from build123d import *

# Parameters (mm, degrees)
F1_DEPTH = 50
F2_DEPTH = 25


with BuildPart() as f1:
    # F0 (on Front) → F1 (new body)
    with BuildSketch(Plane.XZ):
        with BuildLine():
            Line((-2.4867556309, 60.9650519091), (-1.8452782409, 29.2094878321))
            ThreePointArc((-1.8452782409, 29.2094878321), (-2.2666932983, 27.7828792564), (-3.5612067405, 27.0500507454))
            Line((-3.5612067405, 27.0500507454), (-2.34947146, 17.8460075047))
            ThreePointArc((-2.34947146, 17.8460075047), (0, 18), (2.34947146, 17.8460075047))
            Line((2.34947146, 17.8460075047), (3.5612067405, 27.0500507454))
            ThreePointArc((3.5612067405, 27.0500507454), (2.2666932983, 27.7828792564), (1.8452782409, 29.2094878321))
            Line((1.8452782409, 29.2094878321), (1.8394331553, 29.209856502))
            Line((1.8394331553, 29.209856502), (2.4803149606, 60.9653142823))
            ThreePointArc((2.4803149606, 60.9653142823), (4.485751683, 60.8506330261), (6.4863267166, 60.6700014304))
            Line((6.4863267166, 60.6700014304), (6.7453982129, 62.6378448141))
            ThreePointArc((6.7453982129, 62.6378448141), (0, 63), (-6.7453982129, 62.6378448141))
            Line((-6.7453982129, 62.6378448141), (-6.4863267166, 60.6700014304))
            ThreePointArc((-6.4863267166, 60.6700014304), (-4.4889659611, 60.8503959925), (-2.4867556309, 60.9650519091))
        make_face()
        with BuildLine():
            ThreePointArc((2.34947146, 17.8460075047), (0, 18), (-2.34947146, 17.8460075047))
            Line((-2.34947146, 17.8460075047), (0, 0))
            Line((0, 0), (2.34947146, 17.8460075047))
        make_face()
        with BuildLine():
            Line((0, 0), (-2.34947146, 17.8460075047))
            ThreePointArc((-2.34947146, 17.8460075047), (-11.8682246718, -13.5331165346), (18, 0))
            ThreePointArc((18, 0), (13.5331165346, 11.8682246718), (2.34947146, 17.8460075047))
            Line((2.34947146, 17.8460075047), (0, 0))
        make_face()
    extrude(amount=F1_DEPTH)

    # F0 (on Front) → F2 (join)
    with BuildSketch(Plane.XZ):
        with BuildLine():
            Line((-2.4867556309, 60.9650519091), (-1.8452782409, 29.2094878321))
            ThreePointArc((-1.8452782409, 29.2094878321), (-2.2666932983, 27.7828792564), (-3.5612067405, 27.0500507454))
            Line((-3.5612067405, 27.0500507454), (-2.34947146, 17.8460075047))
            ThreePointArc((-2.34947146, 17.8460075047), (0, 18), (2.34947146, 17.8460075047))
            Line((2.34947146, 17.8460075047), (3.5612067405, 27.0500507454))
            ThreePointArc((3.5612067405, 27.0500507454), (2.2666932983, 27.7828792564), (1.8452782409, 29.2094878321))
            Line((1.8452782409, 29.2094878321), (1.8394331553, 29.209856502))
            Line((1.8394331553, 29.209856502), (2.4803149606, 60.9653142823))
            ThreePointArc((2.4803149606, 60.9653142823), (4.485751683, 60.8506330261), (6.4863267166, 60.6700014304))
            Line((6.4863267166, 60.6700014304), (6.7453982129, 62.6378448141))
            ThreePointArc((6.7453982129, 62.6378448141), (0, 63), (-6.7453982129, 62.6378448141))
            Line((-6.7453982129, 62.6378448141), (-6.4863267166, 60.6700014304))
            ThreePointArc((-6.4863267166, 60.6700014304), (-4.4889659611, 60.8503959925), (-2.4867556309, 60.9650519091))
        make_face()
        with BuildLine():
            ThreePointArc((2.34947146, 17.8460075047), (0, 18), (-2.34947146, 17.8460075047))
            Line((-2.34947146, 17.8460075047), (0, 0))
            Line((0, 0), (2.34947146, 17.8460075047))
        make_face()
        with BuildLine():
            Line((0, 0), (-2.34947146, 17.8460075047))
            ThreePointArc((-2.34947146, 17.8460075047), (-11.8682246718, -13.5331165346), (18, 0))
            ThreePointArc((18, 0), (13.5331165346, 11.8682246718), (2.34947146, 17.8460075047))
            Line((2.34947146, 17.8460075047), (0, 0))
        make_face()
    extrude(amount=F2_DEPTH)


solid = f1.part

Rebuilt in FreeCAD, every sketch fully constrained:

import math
import FreeCAD as App
import Part
import Sketcher

V = App.Vector
Q = App.Units.Quantity

doc = App.newDocument("Part")
body = doc.addObject("PartDesign::Body", "Body")

# Sketch on XZ plane
sketch1 = body.newObject("Sketcher::SketchObject", "Sketch")
sketch1.AttachmentSupport = (doc.getObject("XZ_Plane"), [""])
sketch1.MapMode = "FlatFace"
sketch1.addGeometry([
    Part.LineSegment(V(-2.487, 60.965, 0), V(-1.845, 29.209, 0)),  # 0
    Part.ArcOfCircle(Part.Circle(V(-3.82, 29.017, 0), V(0, 0, 1), 1.984), math.radians(-82), math.radians(6)),  # 1
    Part.LineSegment(V(-3.561, 27.05, 0), V(-2.349, 17.846, 0)),  # 2
    Part.ArcOfCircle(Part.Circle(V(0, 0, 0), V(0, 0, 1), 18), math.radians(98), math.radians(360)),  # 3
    Part.ArcOfCircle(Part.Circle(V(0, 0, 0), V(0, 0, 1), 18), math.radians(0), math.radians(82)),  # 4
    Part.LineSegment(V(2.349, 17.846, 0), V(3.561, 27.05, 0)),  # 5
    Part.ArcOfCircle(Part.Circle(V(3.82, 29.017, 0), V(0, 0, 1), 1.984), math.radians(174), math.radians(262)),  # 6
    Part.LineSegment(V(1.845, 29.209, 0), V(1.839, 29.21, 0)),  # 7
    Part.LineSegment(V(1.839, 29.21, 0), V(2.48, 60.965, 0)),  # 8
    Part.ArcOfCircle(Part.Circle(V(0, 0, 0), V(0, 0, 1), 61.016), math.radians(83.9), math.radians(87.67)),  # 9
    Part.LineSegment(V(6.486, 60.67, 0), V(6.745, 62.638, 0)),  # 10
    Part.ArcOfCircle(Part.Circle(V(0, 0, 0), V(0, 0, 1), 63), math.radians(83.85), math.radians(96.15)),  # 11
    Part.LineSegment(V(-6.745, 62.638, 0), V(-6.486, 60.67, 0)),  # 12
    Part.ArcOfCircle(Part.Circle(V(0, 0, 0), V(0, 0, 1), 61.016), math.radians(92.34), math.radians(96.1)),  # 13
], False)
sketch1.addConstraint([
    Sketcher.Constraint("Coincident", 0, 2, 1, 2),
    Sketcher.Constraint("Coincident", 1, 1, 2, 1),
    Sketcher.Constraint("Coincident", 2, 2, 3, 1),
    Sketcher.Constraint("Tangent", 3, 2, 4, 1),
    Sketcher.Constraint("Coincident", 4, 2, 5, 1),
    Sketcher.Constraint("Coincident", 5, 2, 6, 2),
    Sketcher.Constraint("Coincident", 6, 1, 7, 1),
    Sketcher.Constraint("Coincident", 7, 2, 8, 1),
    Sketcher.Constraint("Coincident", 8, 2, 9, 2),
    Sketcher.Constraint("Coincident", 9, 1, 10, 1),
    Sketcher.Constraint("Coincident", 10, 2, 11, 1),
    Sketcher.Constraint("Coincident", 11, 2, 12, 1),
    Sketcher.Constraint("Coincident", 12, 2, 13, 2),
    Sketcher.Constraint("Coincident", 13, 1, 0, 1),
    Sketcher.Constraint("Coincident", 3, 3, -1, 1),
    Sketcher.Constraint("Coincident", 9, 3, -1, 1),
    Sketcher.Constraint("Coincident", 11, 3, -1, 1),
    Sketcher.Constraint("Coincident", 13, 3, -1, 1),
    Sketcher.Constraint("Equal", 3, 4),
    Sketcher.Constraint("Equal", 1, 6),
    Sketcher.Constraint("Equal", 9, 13),
    Sketcher.Constraint("Symmetric", 1, 3, 6, 3, -2),
    Sketcher.Constraint("PointOnObject", 3, 2, -1),
    Sketcher.Constraint("Parallel", 5, 10),
    Sketcher.Constraint("Parallel", 2, 12),
    Sketcher.Constraint("Horizontal", 2, 2, 4, 2),
    Sketcher.Constraint("Horizontal", 1, 1, 5, 2),
    Sketcher.Constraint("Horizontal", 0, 2, 6, 1),
    Sketcher.Constraint("Horizontal", 10, 2, 11, 2),
    Sketcher.Constraint("Radius", 3, 18.0),
    Sketcher.Constraint("Radius", 11, 63.0),
    Sketcher.Constraint("Angle", 2, Q("-82.5 deg")),
    Sketcher.Constraint("DistanceY", -1, 1, 9, 1, 60.670001),
    Sketcher.Constraint("Radius", 1, 1.984252),
    Sketcher.Constraint("Radius", 9, 61.015748),
    Sketcher.Constraint("DistanceX", 0, 2, -1, 1, 1.845278),
    Sketcher.Constraint("DistanceY", -1, 1, 1, 1, 27.050051),
    Sketcher.Constraint("DistanceX", 2, 2, -1, 1, 2.349471),
    Sketcher.Constraint("DistanceY", -1, 1, 13, 1, 60.965052),
    Sketcher.Constraint("DistanceY", 1, 3, 0, 2, 0.192161),
    Sketcher.Constraint("DistanceY", 6, 1, 7, 2, 0.000369),
    Sketcher.Constraint("DistanceX", 7, 2, 6, 3, 1.98077),
    Sketcher.Constraint("DistanceX", 7, 2, 8, 2, 0.640882),
])
pad1 = body.newObject("PartDesign::Pad", "Pad")
pad1.Profile = sketch1
pad1.Length = 50

# Sketch on XZ plane
sketch2 = body.newObject("Sketcher::SketchObject", "Sketch001")
sketch2.AttachmentSupport = (doc.getObject("XZ_Plane"), [""])
sketch2.MapMode = "FlatFace"
sketch2.addGeometry([
    Part.LineSegment(V(-2.487, 60.965, 0), V(-1.845, 29.209, 0)),  # 0
    Part.ArcOfCircle(Part.Circle(V(-3.82, 29.017, 0), V(0, 0, 1), 1.984), math.radians(-82), math.radians(6)),  # 1
    Part.LineSegment(V(-3.561, 27.05, 0), V(-2.349, 17.846, 0)),  # 2
    Part.ArcOfCircle(Part.Circle(V(0, 0, 0), V(0, 0, 1), 18), math.radians(98), math.radians(360)),  # 3
    Part.ArcOfCircle(Part.Circle(V(0, 0, 0), V(0, 0, 1), 18), math.radians(0), math.radians(82)),  # 4
    Part.LineSegment(V(2.349, 17.846, 0), V(3.561, 27.05, 0)),  # 5
    Part.ArcOfCircle(Part.Circle(V(3.82, 29.017, 0), V(0, 0, 1), 1.984), math.radians(174), math.radians(262)),  # 6
    Part.LineSegment(V(1.845, 29.209, 0), V(1.839, 29.21, 0)),  # 7
    Part.LineSegment(V(1.839, 29.21, 0), V(2.48, 60.965, 0)),  # 8
    Part.ArcOfCircle(Part.Circle(V(0, 0, 0), V(0, 0, 1), 61.016), math.radians(83.9), math.radians(87.67)),  # 9
    Part.LineSegment(V(6.486, 60.67, 0), V(6.745, 62.638, 0)),  # 10
    Part.ArcOfCircle(Part.Circle(V(0, 0, 0), V(0, 0, 1), 63), math.radians(83.85), math.radians(96.15)),  # 11
    Part.LineSegment(V(-6.745, 62.638, 0), V(-6.486, 60.67, 0)),  # 12
    Part.ArcOfCircle(Part.Circle(V(0, 0, 0), V(0, 0, 1), 61.016), math.radians(92.34), math.radians(96.1)),  # 13
], False)
sketch2.addConstraint([
    Sketcher.Constraint("Coincident", 0, 2, 1, 2),
    Sketcher.Constraint("Coincident", 1, 1, 2, 1),
    Sketcher.Constraint("Coincident", 2, 2, 3, 1),
    Sketcher.Constraint("Tangent", 3, 2, 4, 1),
    Sketcher.Constraint("Coincident", 4, 2, 5, 1),
    Sketcher.Constraint("Coincident", 5, 2, 6, 2),
    Sketcher.Constraint("Coincident", 6, 1, 7, 1),
    Sketcher.Constraint("Coincident", 7, 2, 8, 1),
    Sketcher.Constraint("Coincident", 8, 2, 9, 2),
    Sketcher.Constraint("Coincident", 9, 1, 10, 1),
    Sketcher.Constraint("Coincident", 10, 2, 11, 1),
    Sketcher.Constraint("Coincident", 11, 2, 12, 1),
    Sketcher.Constraint("Coincident", 12, 2, 13, 2),
    Sketcher.Constraint("Coincident", 13, 1, 0, 1),
    Sketcher.Constraint("Coincident", 3, 3, -1, 1),
    Sketcher.Constraint("Coincident", 9, 3, -1, 1),
    Sketcher.Constraint("Coincident", 11, 3, -1, 1),
    Sketcher.Constraint("Coincident", 13, 3, -1, 1),
    Sketcher.Constraint("Equal", 3, 4),
    Sketcher.Constraint("Equal", 1, 6),
    Sketcher.Constraint("Equal", 9, 13),
    Sketcher.Constraint("Symmetric", 1, 3, 6, 3, -2),
    Sketcher.Constraint("PointOnObject", 3, 2, -1),
    Sketcher.Constraint("Parallel", 5, 10),
    Sketcher.Constraint("Parallel", 2, 12),
    Sketcher.Constraint("Horizontal", 2, 2, 4, 2),
    Sketcher.Constraint("Horizontal", 1, 1, 5, 2),
    Sketcher.Constraint("Horizontal", 0, 2, 6, 1),
    Sketcher.Constraint("Horizontal", 10, 2, 11, 2),
    Sketcher.Constraint("Radius", 3, 18.0),
    Sketcher.Constraint("Radius", 11, 63.0),
    Sketcher.Constraint("Angle", 2, Q("-82.5 deg")),
    Sketcher.Constraint("DistanceY", -1, 1, 9, 1, 60.670001),
    Sketcher.Constraint("Radius", 1, 1.984252),
    Sketcher.Constraint("Radius", 9, 61.015748),
    Sketcher.Constraint("DistanceX", 0, 2, -1, 1, 1.845278),
    Sketcher.Constraint("DistanceY", -1, 1, 1, 1, 27.050051),
    Sketcher.Constraint("DistanceX", 2, 2, -1, 1, 2.349471),
    Sketcher.Constraint("DistanceY", -1, 1, 13, 1, 60.965052),
    Sketcher.Constraint("DistanceY", 1, 3, 0, 2, 0.192161),
    Sketcher.Constraint("DistanceY", 6, 1, 7, 2, 0.000369),
    Sketcher.Constraint("DistanceX", 7, 2, 6, 3, 1.98077),
    Sketcher.Constraint("DistanceX", 7, 2, 8, 2, 0.640882),
])
pad2 = body.newObject("PartDesign::Pad", "Pad001")
pad2.Profile = sketch2
pad2.Length = 25

doc.recompute()
